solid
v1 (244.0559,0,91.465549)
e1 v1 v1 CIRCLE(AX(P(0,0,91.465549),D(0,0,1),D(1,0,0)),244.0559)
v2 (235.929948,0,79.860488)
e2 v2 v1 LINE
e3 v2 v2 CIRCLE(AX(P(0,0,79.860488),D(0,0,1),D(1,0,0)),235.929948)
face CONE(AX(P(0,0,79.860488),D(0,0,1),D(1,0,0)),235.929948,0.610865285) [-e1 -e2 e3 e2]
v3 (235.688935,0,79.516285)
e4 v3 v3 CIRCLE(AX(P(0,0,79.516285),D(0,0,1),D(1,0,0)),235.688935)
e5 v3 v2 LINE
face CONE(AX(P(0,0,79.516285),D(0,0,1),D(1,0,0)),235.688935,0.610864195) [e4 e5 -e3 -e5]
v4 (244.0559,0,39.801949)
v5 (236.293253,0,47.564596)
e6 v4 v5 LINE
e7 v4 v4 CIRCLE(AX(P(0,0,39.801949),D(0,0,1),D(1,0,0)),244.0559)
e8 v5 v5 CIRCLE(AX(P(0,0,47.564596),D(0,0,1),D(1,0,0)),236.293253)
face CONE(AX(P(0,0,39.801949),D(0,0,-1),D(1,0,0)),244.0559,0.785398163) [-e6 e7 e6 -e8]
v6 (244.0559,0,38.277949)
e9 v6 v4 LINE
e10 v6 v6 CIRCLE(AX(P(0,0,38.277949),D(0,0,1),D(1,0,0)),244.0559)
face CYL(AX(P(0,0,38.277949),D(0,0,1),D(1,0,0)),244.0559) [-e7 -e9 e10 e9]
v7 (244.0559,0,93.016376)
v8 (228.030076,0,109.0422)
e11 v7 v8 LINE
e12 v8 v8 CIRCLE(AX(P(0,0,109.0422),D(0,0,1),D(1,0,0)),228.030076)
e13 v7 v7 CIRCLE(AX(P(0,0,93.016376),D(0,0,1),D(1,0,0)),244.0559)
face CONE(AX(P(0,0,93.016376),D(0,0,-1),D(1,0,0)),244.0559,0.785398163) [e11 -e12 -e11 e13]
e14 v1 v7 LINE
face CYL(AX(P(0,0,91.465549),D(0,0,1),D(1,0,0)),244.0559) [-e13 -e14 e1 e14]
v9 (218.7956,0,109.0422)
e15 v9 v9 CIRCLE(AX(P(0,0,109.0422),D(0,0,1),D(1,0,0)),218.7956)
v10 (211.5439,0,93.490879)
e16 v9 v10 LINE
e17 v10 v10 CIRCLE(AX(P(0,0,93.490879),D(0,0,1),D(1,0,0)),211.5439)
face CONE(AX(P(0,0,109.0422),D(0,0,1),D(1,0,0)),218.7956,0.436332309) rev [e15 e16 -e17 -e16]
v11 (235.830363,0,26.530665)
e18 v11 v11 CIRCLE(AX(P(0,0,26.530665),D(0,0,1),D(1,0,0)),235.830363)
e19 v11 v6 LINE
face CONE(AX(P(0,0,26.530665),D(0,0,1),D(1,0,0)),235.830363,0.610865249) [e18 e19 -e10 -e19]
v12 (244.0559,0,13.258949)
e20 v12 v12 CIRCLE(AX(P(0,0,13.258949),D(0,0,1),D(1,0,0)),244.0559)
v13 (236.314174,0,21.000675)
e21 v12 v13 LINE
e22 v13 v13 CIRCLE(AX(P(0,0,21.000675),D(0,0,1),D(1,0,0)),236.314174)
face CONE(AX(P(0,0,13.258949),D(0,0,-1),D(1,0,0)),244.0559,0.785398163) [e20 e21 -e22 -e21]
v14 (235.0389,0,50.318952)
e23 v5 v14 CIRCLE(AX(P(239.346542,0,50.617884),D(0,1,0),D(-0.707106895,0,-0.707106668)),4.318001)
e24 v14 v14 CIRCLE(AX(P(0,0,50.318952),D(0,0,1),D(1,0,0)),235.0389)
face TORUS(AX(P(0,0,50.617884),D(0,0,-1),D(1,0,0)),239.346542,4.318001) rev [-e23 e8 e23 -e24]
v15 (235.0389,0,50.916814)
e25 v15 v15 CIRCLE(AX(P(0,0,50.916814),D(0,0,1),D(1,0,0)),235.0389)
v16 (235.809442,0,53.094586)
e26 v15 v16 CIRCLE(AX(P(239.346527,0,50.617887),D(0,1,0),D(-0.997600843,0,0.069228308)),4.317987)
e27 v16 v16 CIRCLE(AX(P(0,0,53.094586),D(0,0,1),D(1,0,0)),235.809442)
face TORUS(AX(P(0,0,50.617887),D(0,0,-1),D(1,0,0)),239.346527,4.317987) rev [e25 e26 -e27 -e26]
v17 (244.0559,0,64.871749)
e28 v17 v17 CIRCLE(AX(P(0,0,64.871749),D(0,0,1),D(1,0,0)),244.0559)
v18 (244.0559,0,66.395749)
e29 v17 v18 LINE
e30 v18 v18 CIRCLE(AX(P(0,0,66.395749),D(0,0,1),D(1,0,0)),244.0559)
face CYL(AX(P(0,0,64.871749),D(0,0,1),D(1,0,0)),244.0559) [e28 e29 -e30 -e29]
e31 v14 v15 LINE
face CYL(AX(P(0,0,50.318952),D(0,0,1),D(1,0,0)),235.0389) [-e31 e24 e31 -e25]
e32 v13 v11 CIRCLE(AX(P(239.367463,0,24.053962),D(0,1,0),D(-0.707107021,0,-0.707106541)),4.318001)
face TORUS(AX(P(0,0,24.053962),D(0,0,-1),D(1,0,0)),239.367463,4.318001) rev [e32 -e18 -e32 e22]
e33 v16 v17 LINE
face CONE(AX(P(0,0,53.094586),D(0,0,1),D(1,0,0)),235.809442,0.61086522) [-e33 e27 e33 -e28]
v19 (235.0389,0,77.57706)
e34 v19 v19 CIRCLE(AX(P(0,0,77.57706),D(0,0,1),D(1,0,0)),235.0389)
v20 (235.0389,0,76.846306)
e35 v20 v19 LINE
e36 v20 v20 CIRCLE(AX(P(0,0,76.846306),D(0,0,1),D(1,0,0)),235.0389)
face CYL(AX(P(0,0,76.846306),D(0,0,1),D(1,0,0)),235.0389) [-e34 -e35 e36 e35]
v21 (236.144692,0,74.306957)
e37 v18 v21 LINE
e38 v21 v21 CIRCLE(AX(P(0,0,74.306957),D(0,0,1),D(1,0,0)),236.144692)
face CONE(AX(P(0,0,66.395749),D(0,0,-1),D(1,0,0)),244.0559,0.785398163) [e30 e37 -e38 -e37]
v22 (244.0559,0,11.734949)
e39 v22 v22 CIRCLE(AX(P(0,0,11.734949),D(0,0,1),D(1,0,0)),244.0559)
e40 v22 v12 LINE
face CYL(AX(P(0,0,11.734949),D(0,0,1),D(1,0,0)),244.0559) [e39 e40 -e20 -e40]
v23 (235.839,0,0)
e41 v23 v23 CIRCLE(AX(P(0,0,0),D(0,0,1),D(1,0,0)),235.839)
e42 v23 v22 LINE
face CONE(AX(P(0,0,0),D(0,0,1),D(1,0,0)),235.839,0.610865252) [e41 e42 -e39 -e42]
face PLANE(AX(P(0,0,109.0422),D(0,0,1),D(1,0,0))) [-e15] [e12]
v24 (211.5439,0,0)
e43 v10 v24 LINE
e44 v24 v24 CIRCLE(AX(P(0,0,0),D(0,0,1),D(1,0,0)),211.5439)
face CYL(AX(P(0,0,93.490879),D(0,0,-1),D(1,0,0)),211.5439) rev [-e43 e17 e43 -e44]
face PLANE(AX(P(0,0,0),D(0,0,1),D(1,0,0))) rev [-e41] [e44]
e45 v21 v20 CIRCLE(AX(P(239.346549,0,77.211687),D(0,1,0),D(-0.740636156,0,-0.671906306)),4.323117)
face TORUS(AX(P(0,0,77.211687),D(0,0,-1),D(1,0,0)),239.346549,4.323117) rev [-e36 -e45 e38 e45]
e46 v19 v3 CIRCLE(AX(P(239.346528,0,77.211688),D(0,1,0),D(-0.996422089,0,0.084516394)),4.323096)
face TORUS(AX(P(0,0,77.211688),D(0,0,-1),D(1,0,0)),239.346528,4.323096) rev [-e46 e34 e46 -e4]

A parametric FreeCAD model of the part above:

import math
import FreeCAD as App
import Part
import Sketcher

V = App.Vector
Q = App.Units.Quantity

doc = App.newDocument("Part")
body = doc.addObject("PartDesign::Body", "Body")

# Sketch on XZ plane
sketch1 = doc.addObject("Sketcher::SketchObject", "Sketch")
body.addObject(sketch1)
sketch1.AttachmentSupport = (doc.XZ_Plane, [""])
sketch1.MapMode = "FlatFace"
sketch1.addGeometry([
    Part.LineSegment(V(211.54, 93.49, 0), V(211.54, 0, 0)),  # 0
    Part.LineSegment(V(211.54, 0, 0), V(235.84, 0, 0)),  # 1
    Part.LineSegment(V(235.84, 0, 0), V(244.06, 11.73, 0)),  # 2
    Part.LineSegment(V(244.06, 11.73, 0), V(244.06, 13.26, 0)),  # 3
    Part.LineSegment(V(244.06, 13.26, 0), V(236.31, 21, 0)),  # 4
    Part.ArcOfCircle(Part.Circle(V(239.37, 24.05, 0), V(0, 0, 1), 4.32), math.radians(145), math.radians(225)),  # 5
    Part.LineSegment(V(235.83, 26.53, 0), V(244.06, 38.28, 0)),  # 6
    Part.LineSegment(V(244.06, 38.28, 0), V(244.06, 39.8, 0)),  # 7
    Part.LineSegment(V(244.06, 39.8, 0), V(236.29, 47.56, 0)),  # 8
    Part.ArcOfCircle(Part.Circle(V(239.35, 50.62, 0), V(0, 0, 1), 4.32), math.radians(-176), math.radians(-135)),  # 9
    Part.LineSegment(V(235.04, 50.32, 0), V(235.04, 50.92, 0)),  # 10
    Part.ArcOfCircle(Part.Circle(V(239.35, 50.62, 0), V(0, 0, 1), 4.32), math.radians(145), math.radians(176)),  # 11
    Part.LineSegment(V(235.81, 53.09, 0), V(244.06, 64.87, 0)),  # 12
    Part.LineSegment(V(244.06, 64.87, 0), V(244.06, 66.4, 0)),  # 13
    Part.LineSegment(V(244.06, 66.4, 0), V(236.14, 74.31, 0)),  # 14
    Part.ArcOfCircle(Part.Circle(V(239.35, 77.21, 0), V(0, 0, 1), 4.32), math.radians(-175), math.radians(-138)),  # 15
    Part.LineSegment(V(235.04, 76.85, 0), V(235.04, 77.58, 0)),  # 16
    Part.ArcOfCircle(Part.Circle(V(239.35, 77.21, 0), V(0, 0, 1), 4.32), math.radians(148), math.radians(175)),  # 17
    Part.LineSegment(V(235.69, 79.52, 0), V(235.93, 79.86, 0)),  # 18
    Part.LineSegment(V(235.93, 79.86, 0), V(244.06, 91.47, 0)),  # 19
    Part.LineSegment(V(244.06, 91.47, 0), V(244.06, 93.02, 0)),  # 20
    Part.LineSegment(V(244.06, 93.02, 0), V(228.03, 109.04, 0)),  # 21
    Part.LineSegment(V(228.03, 109.04, 0), V(218.8, 109.04, 0)),  # 22
    Part.LineSegment(V(218.8, 109.04, 0), V(211.54, 93.49, 0)),  # 23
], False)
sketch1.addConstraint([
    Sketcher.Constraint("Coincident", 0, 2, 1, 1),
    Sketcher.Constraint("Coincident", 1, 2, 2, 1),
    Sketcher.Constraint("Coincident", 2, 2, 3, 1),
    Sketcher.Constraint("Coincident", 3, 2, 4, 1),
    Sketcher.Constraint("Tangent", 4, 2, 5, 2),
    Sketcher.Constraint("Tangent", 5, 1, 6, 1),
    Sketcher.Constraint("Coincident", 6, 2, 7, 1),
    Sketcher.Constraint("Coincident", 7, 2, 8, 1),
    Sketcher.Constraint("Tangent", 8, 2, 9, 2),
    Sketcher.Constraint("Coincident", 9, 1, 10, 1),
    Sketcher.Constraint("Coincident", 10, 2, 11, 2),
    Sketcher.Constraint("Tangent", 11, 1, 12, 1),
    Sketcher.Constraint("Coincident", 12, 2, 13, 1),
    Sketcher.Constraint("Coincident", 13, 2, 14, 1),
    Sketcher.Constraint("Coincident", 14, 2, 15, 2),
    Sketcher.Constraint("Coincident", 15, 1, 16, 1),
    Sketcher.Constraint("Coincident", 16, 2, 17, 2),
    Sketcher.Constraint("Coincident", 17, 1, 18, 1),
    Sketcher.Constraint("Coincident", 18, 2, 19, 1),
    Sketcher.Constraint("Coincident", 19, 2, 20, 1),
    Sketcher.Constraint("Coincident", 20, 2, 21, 1),
    Sketcher.Constraint("Coincident", 21, 2, 22, 1),
    Sketcher.Constraint("Coincident", 22, 2, 23, 1),
    Sketcher.Constraint("Coincident", 23, 2, 0, 1),
    Sketcher.Constraint("Vertical", 0),
    Sketcher.Constraint("Horizontal", 1),
    Sketcher.Constraint("Vertical", 3),
    Sketcher.Constraint("Vertical", 7),
    Sketcher.Constraint("Vertical", 10),
    Sketcher.Constraint("Vertical", 13),
    Sketcher.Constraint("Vertical", 16),
    Sketcher.Constraint("Vertical", 20),
    Sketcher.Constraint("Horizontal", 22),
    Sketcher.Constraint("Equal", 5, 9),
    Sketcher.Constraint("PointOnObject", 0, 2, -1),
    Sketcher.Constraint("Parallel", 2, 6),
    Sketcher.Constraint("Parallel", 4, 8),
    Sketcher.Constraint("Parallel", 6, 12),
    Sketcher.Constraint("Parallel", 8, 14),
    Sketcher.Constraint("Parallel", 12, 18),
    Sketcher.Constraint("Parallel", 18, 19),
    Sketcher.Constraint("Parallel", 14, 21),
    Sketcher.Constraint("Horizontal", 15, 3, 17, 3),
    Sketcher.Constraint("Vertical", 11, 3, 17, 3),
    Sketcher.Constraint("Vertical", 3, 2, 6, 2),
    Sketcher.Constraint("Vertical", 7, 2, 12, 2),
    Sketcher.Constraint("Vertical", 10, 2, 15, 1),
    Sketcher.Constraint("Vertical", 13, 2, 19, 2),
    Sketcher.Constraint("Equal", 3, 7),
    Sketcher.Constraint("Equal", 7, 13),
    Sketcher.Constraint("Radius", 5, Q("0.17 in")),
    Sketcher.Constraint("Angle", 2, Q("54.999999 deg")),
    Sketcher.Constraint("Angle", 4, Q("135 deg")),
    Sketcher.Constraint("Angle", 23, Q("-115 deg")),
    Sketcher.Constraint("DistanceY", 3, 1, 3, 2, Q("0.06 in")),
    Sketcher.Constraint("DistanceX", 0, 2, 2, 2, Q("1.28 in")),
    Sketcher.Constraint("DistanceX", 1, 1, 1, 2, Q("0.9565 in")),
    Sketcher.Constraint("DistanceX", -1, 1, 1, 2, Q("9.285 in")),
    Sketcher.Constraint("DistanceY", -1, 1, 21, 2, Q("4.293 in")),
    Sketcher.Constraint("DistanceX", -1, 1, 22, 2, Q("8.614 in")),
    Sketcher.Constraint("DistanceY", 11, 3, 15, 3, Q("1.047 in")),
    Sketcher.Constraint("DistanceY", 9, 3, 15, 3, Q("1.0470001 in")),
    Sketcher.Constraint("DistanceX", 9, 1, 7, 2, Q("0.355 in")),
    Sketcher.Constraint("Radius", 11, 4.317987),
    Sketcher.Constraint("Radius", 15, 4.323117),
    Sketcher.Constraint("Radius", 17, 4.323096),
    Sketcher.Constraint("DistanceY", 10, 1, 10, 2, 0.597862),
    Sketcher.Constraint("DistanceX", 11, 1, 9, 3, 3.5371),
    Sketcher.Constraint("DistanceY", 15, 3, 17, 1, 2.304598),
    Sketcher.Constraint("DistanceY", 17, 3, 18, 2, 2.6488),
    Sketcher.Constraint("DistanceX", 18, 2, 15, 3, 3.416601),
    Sketcher.Constraint("DistanceX", 22, 2, 22, 1, 9.234476),
    Sketcher.Constraint("DistanceY", 20, 1, 20, 2, 1.550827),
])
revolution = doc.addObject("PartDesign::Revolution", "Revolution")
body.addObject(revolution)
revolution.Profile = sketch1
revolution.ReferenceAxis = (sketch1, ["V_Axis"])
revolution.Angle = 360

doc.recompute()
